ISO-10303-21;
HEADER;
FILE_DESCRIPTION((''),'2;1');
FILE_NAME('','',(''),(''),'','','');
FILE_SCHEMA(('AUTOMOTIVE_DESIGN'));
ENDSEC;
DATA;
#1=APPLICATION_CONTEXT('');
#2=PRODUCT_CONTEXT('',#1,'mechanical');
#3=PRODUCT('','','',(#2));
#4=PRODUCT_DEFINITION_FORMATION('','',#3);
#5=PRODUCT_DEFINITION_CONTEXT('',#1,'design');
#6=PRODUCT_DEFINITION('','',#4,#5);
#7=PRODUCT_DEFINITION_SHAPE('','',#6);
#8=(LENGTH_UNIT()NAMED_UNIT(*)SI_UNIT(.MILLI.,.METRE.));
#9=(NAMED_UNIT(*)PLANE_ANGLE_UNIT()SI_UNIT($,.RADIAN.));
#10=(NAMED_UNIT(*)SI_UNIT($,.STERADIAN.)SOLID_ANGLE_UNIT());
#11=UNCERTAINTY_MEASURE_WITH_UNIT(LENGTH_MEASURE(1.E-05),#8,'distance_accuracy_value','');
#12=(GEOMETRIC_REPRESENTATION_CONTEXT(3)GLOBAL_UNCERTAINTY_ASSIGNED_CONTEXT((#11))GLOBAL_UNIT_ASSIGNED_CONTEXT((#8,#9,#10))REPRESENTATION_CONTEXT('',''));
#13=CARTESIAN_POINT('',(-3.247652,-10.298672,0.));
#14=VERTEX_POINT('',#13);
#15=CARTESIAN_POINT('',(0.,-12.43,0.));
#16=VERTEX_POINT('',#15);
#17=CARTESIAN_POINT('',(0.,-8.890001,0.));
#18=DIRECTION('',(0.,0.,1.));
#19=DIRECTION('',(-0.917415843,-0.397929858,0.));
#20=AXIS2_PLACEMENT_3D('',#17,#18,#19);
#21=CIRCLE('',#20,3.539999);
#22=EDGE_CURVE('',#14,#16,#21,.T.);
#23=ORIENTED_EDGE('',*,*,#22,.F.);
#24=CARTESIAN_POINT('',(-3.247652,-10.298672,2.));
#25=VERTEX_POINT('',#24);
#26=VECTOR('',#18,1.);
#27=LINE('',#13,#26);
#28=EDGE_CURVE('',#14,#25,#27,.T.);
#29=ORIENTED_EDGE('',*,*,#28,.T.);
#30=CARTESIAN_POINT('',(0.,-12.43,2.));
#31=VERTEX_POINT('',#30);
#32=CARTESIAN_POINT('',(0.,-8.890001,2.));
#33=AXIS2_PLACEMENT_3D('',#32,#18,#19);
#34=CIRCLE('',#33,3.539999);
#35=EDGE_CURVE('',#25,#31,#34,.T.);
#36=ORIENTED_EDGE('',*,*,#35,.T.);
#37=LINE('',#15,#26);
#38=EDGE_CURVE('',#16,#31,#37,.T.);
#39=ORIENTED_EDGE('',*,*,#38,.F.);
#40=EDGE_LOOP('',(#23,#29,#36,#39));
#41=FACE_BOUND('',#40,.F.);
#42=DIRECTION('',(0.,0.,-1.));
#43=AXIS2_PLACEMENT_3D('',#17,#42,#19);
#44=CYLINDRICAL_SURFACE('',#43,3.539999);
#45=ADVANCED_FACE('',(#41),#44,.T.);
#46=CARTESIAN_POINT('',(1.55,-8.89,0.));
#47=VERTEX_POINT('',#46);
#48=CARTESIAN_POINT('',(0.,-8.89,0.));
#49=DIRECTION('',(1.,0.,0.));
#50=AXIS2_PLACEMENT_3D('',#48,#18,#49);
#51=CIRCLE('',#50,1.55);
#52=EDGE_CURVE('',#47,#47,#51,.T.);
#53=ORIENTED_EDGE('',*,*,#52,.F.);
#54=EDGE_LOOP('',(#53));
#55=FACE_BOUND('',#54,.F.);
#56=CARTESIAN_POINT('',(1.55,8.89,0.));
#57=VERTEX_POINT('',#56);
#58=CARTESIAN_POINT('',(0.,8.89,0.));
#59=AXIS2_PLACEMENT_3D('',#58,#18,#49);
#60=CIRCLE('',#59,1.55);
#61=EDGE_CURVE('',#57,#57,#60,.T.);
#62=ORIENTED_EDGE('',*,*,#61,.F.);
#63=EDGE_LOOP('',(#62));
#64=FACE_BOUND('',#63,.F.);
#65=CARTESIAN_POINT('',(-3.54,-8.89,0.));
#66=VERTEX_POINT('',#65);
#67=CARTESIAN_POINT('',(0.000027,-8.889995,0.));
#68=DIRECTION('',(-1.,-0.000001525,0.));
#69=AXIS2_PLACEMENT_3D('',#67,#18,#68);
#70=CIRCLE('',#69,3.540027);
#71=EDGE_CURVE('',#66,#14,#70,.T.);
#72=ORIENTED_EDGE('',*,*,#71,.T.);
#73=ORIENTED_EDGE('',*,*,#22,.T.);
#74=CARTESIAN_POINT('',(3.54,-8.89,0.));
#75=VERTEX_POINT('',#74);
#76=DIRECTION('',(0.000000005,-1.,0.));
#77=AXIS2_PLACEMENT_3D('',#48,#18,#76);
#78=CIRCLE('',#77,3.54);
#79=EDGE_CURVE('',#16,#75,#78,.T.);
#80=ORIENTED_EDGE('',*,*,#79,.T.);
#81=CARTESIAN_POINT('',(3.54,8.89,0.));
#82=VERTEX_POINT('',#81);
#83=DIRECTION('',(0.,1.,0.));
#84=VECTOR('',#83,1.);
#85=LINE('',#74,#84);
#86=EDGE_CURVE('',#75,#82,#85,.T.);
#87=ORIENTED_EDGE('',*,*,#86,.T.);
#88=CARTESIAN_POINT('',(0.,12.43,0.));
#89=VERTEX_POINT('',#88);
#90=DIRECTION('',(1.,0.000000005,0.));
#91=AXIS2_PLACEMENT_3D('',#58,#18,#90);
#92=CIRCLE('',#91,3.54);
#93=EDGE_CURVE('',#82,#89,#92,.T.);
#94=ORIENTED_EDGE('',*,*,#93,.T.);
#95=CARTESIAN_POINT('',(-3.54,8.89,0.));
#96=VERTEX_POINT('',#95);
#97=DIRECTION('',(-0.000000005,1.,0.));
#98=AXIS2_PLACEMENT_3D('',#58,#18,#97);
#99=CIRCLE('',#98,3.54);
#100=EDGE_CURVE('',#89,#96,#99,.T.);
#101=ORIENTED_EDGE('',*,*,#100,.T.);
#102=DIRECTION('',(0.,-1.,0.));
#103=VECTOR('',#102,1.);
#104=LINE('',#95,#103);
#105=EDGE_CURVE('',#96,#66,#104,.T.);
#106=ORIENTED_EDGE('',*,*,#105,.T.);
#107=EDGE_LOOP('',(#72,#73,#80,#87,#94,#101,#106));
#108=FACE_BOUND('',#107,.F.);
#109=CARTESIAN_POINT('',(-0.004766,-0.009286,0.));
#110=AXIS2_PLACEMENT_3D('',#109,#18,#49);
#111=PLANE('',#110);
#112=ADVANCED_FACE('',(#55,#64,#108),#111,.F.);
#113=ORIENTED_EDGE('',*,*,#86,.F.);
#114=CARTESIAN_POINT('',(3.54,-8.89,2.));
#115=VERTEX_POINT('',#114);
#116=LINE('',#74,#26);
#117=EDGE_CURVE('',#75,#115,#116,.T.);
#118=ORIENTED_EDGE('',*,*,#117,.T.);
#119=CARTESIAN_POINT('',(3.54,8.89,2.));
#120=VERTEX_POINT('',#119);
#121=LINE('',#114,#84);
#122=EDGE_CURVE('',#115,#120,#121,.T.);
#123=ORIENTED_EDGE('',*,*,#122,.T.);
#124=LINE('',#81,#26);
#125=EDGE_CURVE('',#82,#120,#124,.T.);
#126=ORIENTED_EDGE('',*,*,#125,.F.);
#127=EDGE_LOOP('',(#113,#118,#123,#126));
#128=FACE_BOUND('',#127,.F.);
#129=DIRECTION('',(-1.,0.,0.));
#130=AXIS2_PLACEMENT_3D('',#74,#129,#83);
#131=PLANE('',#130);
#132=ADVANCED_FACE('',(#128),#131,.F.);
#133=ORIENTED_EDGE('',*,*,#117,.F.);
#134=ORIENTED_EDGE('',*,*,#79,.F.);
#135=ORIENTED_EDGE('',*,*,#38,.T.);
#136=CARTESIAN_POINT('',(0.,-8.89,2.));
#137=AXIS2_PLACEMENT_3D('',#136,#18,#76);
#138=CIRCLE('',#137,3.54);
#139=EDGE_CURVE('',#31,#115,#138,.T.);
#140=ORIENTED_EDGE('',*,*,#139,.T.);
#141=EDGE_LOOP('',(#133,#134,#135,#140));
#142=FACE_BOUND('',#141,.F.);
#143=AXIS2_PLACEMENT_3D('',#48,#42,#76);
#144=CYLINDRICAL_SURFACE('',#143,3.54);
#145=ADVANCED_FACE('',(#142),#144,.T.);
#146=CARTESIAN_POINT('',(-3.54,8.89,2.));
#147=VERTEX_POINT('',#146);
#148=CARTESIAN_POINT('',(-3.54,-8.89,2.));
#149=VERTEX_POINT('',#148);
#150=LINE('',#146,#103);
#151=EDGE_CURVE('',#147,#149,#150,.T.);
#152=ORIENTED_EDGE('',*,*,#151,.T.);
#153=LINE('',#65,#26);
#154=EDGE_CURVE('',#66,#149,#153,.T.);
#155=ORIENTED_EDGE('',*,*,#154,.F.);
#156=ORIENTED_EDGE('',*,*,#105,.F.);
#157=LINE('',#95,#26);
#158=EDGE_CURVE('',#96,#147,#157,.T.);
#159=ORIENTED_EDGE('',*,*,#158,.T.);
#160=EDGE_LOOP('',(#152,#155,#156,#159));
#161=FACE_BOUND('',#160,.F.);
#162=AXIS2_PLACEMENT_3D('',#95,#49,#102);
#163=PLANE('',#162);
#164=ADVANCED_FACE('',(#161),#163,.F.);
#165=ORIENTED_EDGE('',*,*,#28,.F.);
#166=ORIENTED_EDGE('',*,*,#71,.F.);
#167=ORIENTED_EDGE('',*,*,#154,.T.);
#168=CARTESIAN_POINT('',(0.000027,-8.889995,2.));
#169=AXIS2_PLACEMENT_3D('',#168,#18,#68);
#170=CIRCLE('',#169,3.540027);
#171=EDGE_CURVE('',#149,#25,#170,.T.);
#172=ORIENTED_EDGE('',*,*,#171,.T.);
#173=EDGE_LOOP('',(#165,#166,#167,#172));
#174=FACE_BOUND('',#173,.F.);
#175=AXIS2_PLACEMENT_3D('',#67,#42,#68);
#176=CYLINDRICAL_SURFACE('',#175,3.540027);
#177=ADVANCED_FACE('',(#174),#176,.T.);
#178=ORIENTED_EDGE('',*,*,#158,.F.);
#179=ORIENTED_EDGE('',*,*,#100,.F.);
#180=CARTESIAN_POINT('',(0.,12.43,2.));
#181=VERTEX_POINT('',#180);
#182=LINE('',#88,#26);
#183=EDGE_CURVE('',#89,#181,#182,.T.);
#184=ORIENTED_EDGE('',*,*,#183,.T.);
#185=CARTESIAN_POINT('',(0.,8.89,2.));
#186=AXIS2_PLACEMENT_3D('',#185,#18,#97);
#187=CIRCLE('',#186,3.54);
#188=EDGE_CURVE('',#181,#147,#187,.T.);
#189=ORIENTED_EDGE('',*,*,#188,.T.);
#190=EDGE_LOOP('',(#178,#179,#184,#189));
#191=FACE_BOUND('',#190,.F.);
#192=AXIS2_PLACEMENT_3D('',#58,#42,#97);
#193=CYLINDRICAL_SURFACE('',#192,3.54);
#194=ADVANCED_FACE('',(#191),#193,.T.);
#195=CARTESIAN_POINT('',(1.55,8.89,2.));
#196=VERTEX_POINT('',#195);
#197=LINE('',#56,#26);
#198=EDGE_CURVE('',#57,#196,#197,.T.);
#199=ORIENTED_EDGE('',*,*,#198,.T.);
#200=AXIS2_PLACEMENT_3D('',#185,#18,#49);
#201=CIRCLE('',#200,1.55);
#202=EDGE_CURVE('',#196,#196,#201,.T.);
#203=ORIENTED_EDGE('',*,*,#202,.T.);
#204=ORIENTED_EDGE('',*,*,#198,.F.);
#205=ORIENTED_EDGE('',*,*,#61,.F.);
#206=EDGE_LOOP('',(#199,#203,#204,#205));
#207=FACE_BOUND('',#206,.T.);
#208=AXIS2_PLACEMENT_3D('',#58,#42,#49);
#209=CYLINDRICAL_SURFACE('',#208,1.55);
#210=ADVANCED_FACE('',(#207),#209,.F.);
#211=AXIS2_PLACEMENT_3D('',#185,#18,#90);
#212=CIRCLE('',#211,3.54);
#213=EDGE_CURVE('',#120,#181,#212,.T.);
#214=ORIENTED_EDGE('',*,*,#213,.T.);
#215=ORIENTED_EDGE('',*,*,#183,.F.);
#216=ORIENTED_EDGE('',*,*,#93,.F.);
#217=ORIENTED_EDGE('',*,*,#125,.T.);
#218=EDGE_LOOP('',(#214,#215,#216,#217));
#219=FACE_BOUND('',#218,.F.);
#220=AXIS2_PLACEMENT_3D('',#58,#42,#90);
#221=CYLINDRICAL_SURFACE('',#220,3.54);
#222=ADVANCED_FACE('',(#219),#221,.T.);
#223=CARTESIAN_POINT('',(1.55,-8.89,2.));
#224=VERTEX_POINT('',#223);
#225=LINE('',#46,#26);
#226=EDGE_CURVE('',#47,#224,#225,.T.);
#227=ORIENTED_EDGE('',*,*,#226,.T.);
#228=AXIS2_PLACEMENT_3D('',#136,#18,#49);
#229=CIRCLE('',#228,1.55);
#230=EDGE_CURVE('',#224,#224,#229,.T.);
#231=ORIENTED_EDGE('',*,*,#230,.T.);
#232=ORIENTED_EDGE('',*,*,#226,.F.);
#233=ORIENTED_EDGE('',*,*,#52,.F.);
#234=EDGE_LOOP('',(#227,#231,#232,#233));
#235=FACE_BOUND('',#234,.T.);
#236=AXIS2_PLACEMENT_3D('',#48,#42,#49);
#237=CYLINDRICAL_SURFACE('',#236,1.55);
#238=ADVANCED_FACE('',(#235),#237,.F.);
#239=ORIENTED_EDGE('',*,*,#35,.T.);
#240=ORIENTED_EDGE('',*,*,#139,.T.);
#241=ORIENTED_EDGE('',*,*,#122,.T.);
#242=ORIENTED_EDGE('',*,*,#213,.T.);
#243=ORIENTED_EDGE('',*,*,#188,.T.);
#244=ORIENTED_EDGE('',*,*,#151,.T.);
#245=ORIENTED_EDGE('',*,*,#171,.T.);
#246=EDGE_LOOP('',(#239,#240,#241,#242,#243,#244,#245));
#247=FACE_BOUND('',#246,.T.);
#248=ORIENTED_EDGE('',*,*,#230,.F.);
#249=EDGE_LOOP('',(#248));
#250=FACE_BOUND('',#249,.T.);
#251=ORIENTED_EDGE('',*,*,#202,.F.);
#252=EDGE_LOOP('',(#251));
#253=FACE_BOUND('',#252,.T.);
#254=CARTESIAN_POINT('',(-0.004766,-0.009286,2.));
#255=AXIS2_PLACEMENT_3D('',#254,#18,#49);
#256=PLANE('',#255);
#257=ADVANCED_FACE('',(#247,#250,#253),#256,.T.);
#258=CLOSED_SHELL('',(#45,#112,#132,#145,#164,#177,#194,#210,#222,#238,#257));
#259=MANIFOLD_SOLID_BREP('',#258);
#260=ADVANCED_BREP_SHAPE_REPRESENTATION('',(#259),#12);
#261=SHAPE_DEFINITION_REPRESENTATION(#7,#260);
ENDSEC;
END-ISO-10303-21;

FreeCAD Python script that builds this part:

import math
import FreeCAD as App
import Part
import Sketcher
from FreeCAD import Vector

doc = App.newDocument("Part")
body = doc.addObject("PartDesign::Body", "Body")

sketch1 = body.newObject("Sketcher::SketchObject", "Sketch")
sketch1.AttachmentSupport = (doc.getObject("XY_Plane"), [""])
sketch1.MapMode = "FlatFace"
sketch1.addGeometry(Part.ArcOfCircle(Part.Circle(Vector(0, -8.89, 0), Vector(0, 0, 1), 3.54), math.radians(-90), math.radians(0)), False)
sketch1.addGeometry(Part.LineSegment(Vector(3.54, -8.89, 0), Vector(3.54, 8.89, 0)), False)
sketch1.addGeometry(Part.ArcOfCircle(Part.Circle(Vector(0, 8.89, 0), Vector(0, 0, 1), 3.54), math.radians(0), math.radians(90)), False)
sketch1.addGeometry(Part.ArcOfCircle(Part.Circle(Vector(0, 8.89, 0), Vector(0, 0, 1), 3.54), math.radians(90), math.radians(180)), False)
sketch1.addGeometry(Part.LineSegment(Vector(-3.54, 8.89, 0), Vector(-3.54, -8.89, 0)), False)
sketch1.addGeometry(Part.ArcOfCircle(Part.Circle(Vector(0.000027, -8.889995, 0), Vector(0, 0, 1), 3.540027), math.radians(-179.999913), math.radians(-156.551258)), False)
sketch1.addGeometry(Part.ArcOfCircle(Part.Circle(Vector(0, -8.890001, 0), Vector(0, 0, 1), 3.539999), math.radians(-156.551172), math.radians(-89.999994)), False)
sketch1.addGeometry(Part.Circle(Vector(0, -8.89, 0), Vector(0, 0, 1), 1.55), False)
sketch1.addGeometry(Part.Circle(Vector(0, 8.89, 0), Vector(0, 0, 1), 1.55), False)
sketch1.addConstraint(Sketcher.Constraint("Coincident", 0, 2, 1, 1))
sketch1.addConstraint(Sketcher.Constraint("Coincident", 1, 2, 2, 1))
sketch1.addConstraint(Sketcher.Constraint("Coincident", 2, 2, 3, 1))
sketch1.addConstraint(Sketcher.Constraint("Coincident", 3, 2, 4, 1))
sketch1.addConstraint(Sketcher.Constraint("Coincident", 4, 2, 5, 1))
sketch1.addConstraint(Sketcher.Constraint("Coincident", 5, 2, 6, 1))
sketch1.addConstraint(Sketcher.Constraint("Coincident", 6, 2, 0, 1))
sketch1.addConstraint(Sketcher.Constraint("Vertical", 1))
sketch1.addConstraint(Sketcher.Constraint("Vertical", 4))
sketch1.addConstraint(Sketcher.Constraint("Coincident", 3, 3, 2, 3))
sketch1.addConstraint(Sketcher.Constraint("Coincident", 6, 3, 0, 3))
sketch1.addConstraint(Sketcher.Constraint("Coincident", 7, 3, 0, 3))
sketch1.addConstraint(Sketcher.Constraint("Coincident", 8, 3, 2, 3))
sketch1.addConstraint(Sketcher.Constraint("PointOnObject", 0, 3, -2))
sketch1.addConstraint(Sketcher.Constraint("PointOnObject", 2, 3, -2))
sketch1.addConstraint(Sketcher.Constraint("PointOnObject", 2, 2, -2))
sketch1.addConstraint(Sketcher.Constraint("PointOnObject", 6, 2, -2))
sketch1.addConstraint(Sketcher.Constraint("Diameter", 7, 3.1))
sketch1.addConstraint(Sketcher.Constraint("Diameter", 8, 3.1))
sketch1.addConstraint(Sketcher.Constraint("Radius", 0, 3.54))
sketch1.addConstraint(Sketcher.Constraint("DistanceY", 1, 1, 1, 2, 17.78))
sketch1.addConstraint(Sketcher.Constraint("DistanceY", 4, 2, 4, 1, 17.78))
sketch1.addConstraint(Sketcher.Constraint("DistanceY", 0, 3, -1, 1, 8.89))
sketch1.addConstraint(Sketcher.Constraint("DistanceY", -1, 1, 2, 3, 8.89))
sketch1.addConstraint(Sketcher.Constraint("DistanceY", 0, 2, -1, 1, 8.89))
sketch1.addConstraint(Sketcher.Constraint("DistanceY", -1, 1, 3, 2, 8.89))
sketch1.addConstraint(Sketcher.Constraint("Radius", 5, 3.540027))
sketch1.addConstraint(Sketcher.Constraint("DistanceX", 5, 2, 6, 3, 3.247652))
pad1 = body.newObject("PartDesign::Pad", "Pad")
pad1.Profile = sketch1
pad1.Length = 2

doc.recompute()
